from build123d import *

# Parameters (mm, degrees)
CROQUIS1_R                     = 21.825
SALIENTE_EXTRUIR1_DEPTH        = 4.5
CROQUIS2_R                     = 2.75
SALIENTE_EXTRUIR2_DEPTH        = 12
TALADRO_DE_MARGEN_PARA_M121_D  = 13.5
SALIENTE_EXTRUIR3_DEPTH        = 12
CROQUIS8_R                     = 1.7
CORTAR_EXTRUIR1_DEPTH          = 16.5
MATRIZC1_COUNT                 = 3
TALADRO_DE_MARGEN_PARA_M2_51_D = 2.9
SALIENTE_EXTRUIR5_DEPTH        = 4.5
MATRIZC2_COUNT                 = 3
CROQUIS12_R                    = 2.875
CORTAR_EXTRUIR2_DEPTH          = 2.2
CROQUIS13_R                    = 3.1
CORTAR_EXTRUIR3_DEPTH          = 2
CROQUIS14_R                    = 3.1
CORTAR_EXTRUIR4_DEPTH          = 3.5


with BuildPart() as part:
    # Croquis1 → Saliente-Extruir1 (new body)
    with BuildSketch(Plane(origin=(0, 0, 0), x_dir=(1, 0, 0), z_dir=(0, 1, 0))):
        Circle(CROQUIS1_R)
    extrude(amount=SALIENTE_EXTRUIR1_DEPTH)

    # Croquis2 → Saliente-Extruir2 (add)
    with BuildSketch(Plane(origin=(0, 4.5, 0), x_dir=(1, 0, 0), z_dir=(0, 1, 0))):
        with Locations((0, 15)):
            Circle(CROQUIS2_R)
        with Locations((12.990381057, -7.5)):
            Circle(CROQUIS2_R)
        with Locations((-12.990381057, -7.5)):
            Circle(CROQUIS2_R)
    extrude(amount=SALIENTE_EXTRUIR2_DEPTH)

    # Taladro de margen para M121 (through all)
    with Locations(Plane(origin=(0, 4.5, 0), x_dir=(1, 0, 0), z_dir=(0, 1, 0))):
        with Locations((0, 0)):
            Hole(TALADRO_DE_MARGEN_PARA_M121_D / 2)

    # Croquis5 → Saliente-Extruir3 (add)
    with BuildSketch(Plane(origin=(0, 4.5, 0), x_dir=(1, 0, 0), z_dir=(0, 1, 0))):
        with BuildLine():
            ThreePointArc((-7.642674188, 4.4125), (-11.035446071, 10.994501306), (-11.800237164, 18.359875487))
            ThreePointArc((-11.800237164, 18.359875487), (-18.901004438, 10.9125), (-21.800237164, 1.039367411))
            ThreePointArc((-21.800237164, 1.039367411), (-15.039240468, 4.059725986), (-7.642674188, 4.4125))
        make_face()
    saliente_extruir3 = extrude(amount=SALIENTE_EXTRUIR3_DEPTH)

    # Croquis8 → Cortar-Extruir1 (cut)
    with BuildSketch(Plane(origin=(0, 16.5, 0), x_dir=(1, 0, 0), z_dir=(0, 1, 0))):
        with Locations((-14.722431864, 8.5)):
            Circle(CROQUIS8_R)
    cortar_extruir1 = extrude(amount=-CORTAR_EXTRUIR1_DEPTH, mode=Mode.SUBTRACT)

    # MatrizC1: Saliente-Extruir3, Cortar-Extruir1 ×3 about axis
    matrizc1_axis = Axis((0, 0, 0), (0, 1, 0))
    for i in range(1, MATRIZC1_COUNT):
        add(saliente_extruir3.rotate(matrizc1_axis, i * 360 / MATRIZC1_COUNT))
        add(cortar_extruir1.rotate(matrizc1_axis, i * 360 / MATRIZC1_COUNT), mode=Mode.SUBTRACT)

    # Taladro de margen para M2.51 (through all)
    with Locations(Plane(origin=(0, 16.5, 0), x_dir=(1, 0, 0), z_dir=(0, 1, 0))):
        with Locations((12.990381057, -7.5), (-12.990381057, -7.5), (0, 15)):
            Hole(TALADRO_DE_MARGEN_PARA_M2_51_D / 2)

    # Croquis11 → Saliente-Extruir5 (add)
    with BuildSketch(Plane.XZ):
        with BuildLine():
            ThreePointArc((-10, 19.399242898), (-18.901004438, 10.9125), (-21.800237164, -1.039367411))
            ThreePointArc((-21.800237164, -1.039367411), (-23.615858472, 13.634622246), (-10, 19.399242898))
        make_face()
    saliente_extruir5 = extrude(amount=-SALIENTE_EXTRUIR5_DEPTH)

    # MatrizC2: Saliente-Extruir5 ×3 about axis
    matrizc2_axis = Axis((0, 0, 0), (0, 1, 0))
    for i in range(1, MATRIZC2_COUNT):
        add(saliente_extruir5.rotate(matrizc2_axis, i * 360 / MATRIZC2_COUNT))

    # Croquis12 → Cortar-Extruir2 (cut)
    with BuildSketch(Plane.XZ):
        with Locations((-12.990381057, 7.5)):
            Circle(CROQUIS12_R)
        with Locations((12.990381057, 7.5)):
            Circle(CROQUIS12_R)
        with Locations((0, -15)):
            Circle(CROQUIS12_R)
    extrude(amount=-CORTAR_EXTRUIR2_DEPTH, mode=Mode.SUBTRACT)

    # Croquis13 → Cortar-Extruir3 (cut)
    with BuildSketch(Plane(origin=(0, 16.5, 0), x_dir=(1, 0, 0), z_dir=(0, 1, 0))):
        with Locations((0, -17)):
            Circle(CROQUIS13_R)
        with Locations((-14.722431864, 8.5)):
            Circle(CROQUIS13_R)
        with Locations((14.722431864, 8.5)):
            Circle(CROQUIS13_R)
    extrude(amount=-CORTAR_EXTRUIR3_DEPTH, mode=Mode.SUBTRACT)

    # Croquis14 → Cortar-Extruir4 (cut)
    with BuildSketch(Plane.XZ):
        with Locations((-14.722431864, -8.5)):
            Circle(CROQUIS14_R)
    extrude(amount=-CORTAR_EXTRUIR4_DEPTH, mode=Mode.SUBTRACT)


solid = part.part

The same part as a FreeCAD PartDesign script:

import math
import FreeCAD as App
import Part
import Sketcher

doc = App.newDocument("Part")
body = doc.addObject("PartDesign::Body", "Body")

# Sketch on XZ plane
sketch1 = body.newObject("Sketcher::SketchObject", "Sketch")
sketch1.AttachmentSupport = (doc.getObject("XZ_Plane"), [""])
sketch1.MapMode = "FlatFace"
sketch1.addGeometry(Part.Circle(App.Vector(0, 0, 0), App.Vector(0, 0, 1), 22), False)
sketch1.addConstraint(Sketcher.Constraint("Coincident", 0, 3, -1, 1))
sketch1.addConstraint(Sketcher.Constraint("Diameter", 0, 43.65))
pad1 = body.newObject("PartDesign::Pad", "Pad")
pad1.Profile = sketch1
pad1.Length = 4.5
pad1.Reversed = True

# Sketch on XZ plane
sketch2 = body.newObject("Sketcher::SketchObject", "Sketch001")
sketch2.AttachmentSupport = (doc.getObject("XZ_Plane"), [""])
sketch2.MapMode = "FlatFace"
sketch2.AttachmentOffset = App.Placement(App.Vector(0, 0, -4.5), App.Rotation())
sketch2.addGeometry(Part.Circle(App.Vector(0, -15, 0), App.Vector(0, 0, 1), 2.8), False)
sketch2.addGeometry(Part.Circle(App.Vector(13, 7.5, 0), App.Vector(0, 0, 1), 2.8), False)
sketch2.addGeometry(Part.Circle(App.Vector(-13, 7.5, 0), App.Vector(0, 0, 1), 2.8), False)
sketch2.addConstraint(Sketcher.Constraint("Equal", 0, 1))
sketch2.addConstraint(Sketcher.Constraint("Equal", 1, 2))
sketch2.addConstraint(Sketcher.Constraint("Symmetric", 1, 3, 2, 3, -2))
sketch2.addConstraint(Sketcher.Constraint("PointOnObject", 0, 3, -2))
sketch2.addConstraint(Sketcher.Constraint("Diameter", 0, 5.5))
sketch2.addConstraint(Sketcher.Constraint("DistanceY", 0, 3, -1, 1, 15.0))
sketch2.addConstraint(Sketcher.Constraint("DistanceY", -1, 1, 1, 3, 7.5))
sketch2.addConstraint(Sketcher.Constraint("DistanceX", -1, 1, 1, 3, 12.990381))
pad2 = body.newObject("PartDesign::Pad", "Pad001")
pad2.Profile = sketch2
pad2.Length = 12
pad2.Reversed = True

# Sketch on XZ plane
sketch3 = body.newObject("Sketcher::SketchObject", "Sketch002")
sketch3.AttachmentSupport = (doc.getObject("XZ_Plane"), [""])
sketch3.MapMode = "FlatFace"
sketch3.AttachmentOffset = App.Placement(App.Vector(0, 0, -4.5), App.Rotation())
sketch3.addGeometry(Part.Circle(App.Vector(0, 0, 0), App.Vector(0, 0, 1), 7), False)
sketch3.addConstraint(Sketcher.Constraint("Coincident", 0, 3, -1, 1))
sketch3.addConstraint(Sketcher.Constraint("Diameter", 0, 13.5))
doc.recompute()
hole = body.newObject("PartDesign::Hole", "Hole")
hole.Profile = sketch3
hole.ThreadType = "None"
hole.Diameter = 13.5
hole.DepthType = "ThroughAll"
hole.Reversed = True

# Sketch on XZ plane
sketch4 = body.newObject("Sketcher::SketchObject", "Sketch003")
sketch4.AttachmentSupport = (doc.getObject("XZ_Plane"), [""])
sketch4.MapMode = "FlatFace"
sketch4.AttachmentOffset = App.Placement(App.Vector(0, 0, -4.5), App.Rotation())
sketch4.addGeometry(Part.ArcOfCircle(Part.Circle(App.Vector(8, -17, 0), App.Vector(0, 0, 1), 20), math.radians(142), math.radians(185)), False)
sketch4.addGeometry(Part.ArcOfCircle(Part.Circle(App.Vector(0, 0, 0), App.Vector(0, 0, 1), 22), math.radians(-177), math.radians(-123)), False)
sketch4.addGeometry(Part.ArcOfCircle(Part.Circle(App.Vector(-10, 15, 0), App.Vector(0, 0, 1), 20), math.radians(-125), math.radians(-82)), False)
sketch4.addConstraint(Sketcher.Constraint("Coincident", 0, 2, 1, 2))
sketch4.addConstraint(Sketcher.Constraint("Coincident", 1, 1, 2, 1))
sketch4.addConstraint(Sketcher.Constraint("Coincident", 2, 2, 0, 1))
sketch4.addConstraint(Sketcher.Constraint("Coincident", 1, 3, -1, 1))
sketch4.addConstraint(Sketcher.Constraint("Equal", 0, 2))
sketch4.addConstraint(Sketcher.Constraint("Radius", 1, 21.825))
sketch4.addConstraint(Sketcher.Constraint("DistanceX", 1, 1, 0, 2, 10.0))
sketch4.addConstraint(Sketcher.Constraint("Radius", 0, 19.99583))
sketch4.addConstraint(Sketcher.Constraint("DistanceY", 2, 2, -1, 1, 4.4125))
sketch4.addConstraint(Sketcher.Constraint("DistanceY", 0, 3, -1, 1, 16.706661))
sketch4.addConstraint(Sketcher.Constraint("DistanceX", 2, 3, 0, 3, 18.531959))
pad3 = body.newObject("PartDesign::Pad", "Pad002")
pad3.Profile = sketch4
pad3.Length = 12
pad3.Reversed = True

# Sketch on XZ plane
sketch5 = body.newObject("Sketcher::SketchObject", "Sketch004")
sketch5.AttachmentSupport = (doc.getObject("XZ_Plane"), [""])
sketch5.MapMode = "FlatFace"
sketch5.AttachmentOffset = App.Placement(App.Vector(0, 0, -16.5), App.Rotation())
sketch5.addGeometry(Part.Circle(App.Vector(-14.7, -8.5, 0), App.Vector(0, 0, 1), 1.7), False)
sketch5.addConstraint(Sketcher.Constraint("Diameter", 0, 3.4))
sketch5.addConstraint(Sketcher.Constraint("DistanceY", 0, 3, -1, 1, 8.5))
sketch5.addConstraint(Sketcher.Constraint("DistanceX", 0, 3, -1, 1, 14.722432))
pocket1 = body.newObject("PartDesign::Pocket", "Pocket")
pocket1.Profile = sketch5
pocket1.Length = 16.5
pocket1.Reversed = True
doc.recompute()

polarpattern = body.newObject("PartDesign::PolarPattern", "PolarPattern")
polarpattern.Originals = [pad3, pocket1]
polarpattern.Axis = (doc.getObject("Y_Axis"), [""])
polarpattern.Angle = 360
polarpattern.Occurrences = 3
body.Tip = polarpattern

# Sketch on XZ plane
sketch6 = body.newObject("Sketcher::SketchObject", "Sketch005")
sketch6.AttachmentSupport = (doc.getObject("XZ_Plane"), [""])
sketch6.MapMode = "FlatFace"
sketch6.AttachmentOffset = App.Placement(App.Vector(0, 0, -16.5), App.Rotation())
sketch6.addGeometry(Part.Circle(App.Vector(13, 7.5, 0), App.Vector(0, 0, 1), 1.4), False)
sketch6.addGeometry(Part.Circle(App.Vector(-13, 7.5, 0), App.Vector(0, 0, 1), 1.4), False)
sketch6.addGeometry(Part.Circle(App.Vector(0, -15, 0), App.Vector(0, 0, 1), 1.4), False)
sketch6.addConstraint(Sketcher.Constraint("Equal", 0, 1))
sketch6.addConstraint(Sketcher.Constraint("Equal", 1, 2))
sketch6.addConstraint(Sketcher.Constraint("Symmetric", 0, 3, 1, 3, -2))
sketch6.addConstraint(Sketcher.Constraint("PointOnObject", 2, 3, -2))
sketch6.addConstraint(Sketcher.Constraint("Diameter", 0, 2.9))
sketch6.addConstraint(Sketcher.Constraint("DistanceY", 2, 3, -1, 1, 15.0))
sketch6.addConstraint(Sketcher.Constraint("DistanceY", -1, 1, 0, 3, 7.5))
sketch6.addConstraint(Sketcher.Constraint("DistanceX", -1, 1, 0, 3, 12.990381))
doc.recompute()
hole2 = body.newObject("PartDesign::Hole", "Hole001")
hole2.Profile = sketch6
hole2.ThreadType = "None"
hole2.Diameter = 2.9
hole2.DepthType = "ThroughAll"
hole2.Reversed = True

# Sketch on XZ plane
sketch7 = body.newObject("Sketcher::SketchObject", "Sketch006")
sketch7.AttachmentSupport = (doc.getObject("XZ_Plane"), [""])
sketch7.MapMode = "FlatFace"
sketch7.addGeometry(Part.ArcOfCircle(Part.Circle(App.Vector(0, 0, 0), App.Vector(0, 0, 1), 22), math.radians(117), math.radians(183)), False)
sketch7.addGeometry(Part.ArcOfCircle(Part.Circle(App.Vector(-13, 8, 0), App.Vector(0, 0, 1), 12), math.radians(76), math.radians(224)), False)
sketch7.addConstraint(Sketcher.Constraint("Coincident", 0, 1, 1, 1))
sketch7.addConstraint(Sketcher.Constraint("Coincident", 1, 2, 0, 2))
sketch7.addConstraint(Sketcher.Constraint("Coincident", 0, 3, -1, 1))
sketch7.addConstraint(Sketcher.Constraint("DistanceX", 0, 1, -1, 1, 10.0))
sketch7.addConstraint(Sketcher.Constraint("Radius", 0, 21.825))
sketch7.addConstraint(Sketcher.Constraint("DistanceY", -1, 1, 1, 3, 7.5))
sketch7.addConstraint(Sketcher.Constraint("Radius", 1, 12.269244))
pad4 = body.newObject("PartDesign::Pad", "Pad003")
pad4.Profile = sketch7
pad4.Length = 4.5
pad4.Reversed = True
doc.recompute()

polarpattern2 = body.newObject("PartDesign::PolarPattern", "PolarPattern001")
polarpattern2.Originals = [pad4]
polarpattern2.Axis = (doc.getObject("Y_Axis"), [""])
polarpattern2.Angle = 360
polarpattern2.Occurrences = 3
body.Tip = polarpattern2

# Sketch on XZ plane
sketch8 = body.newObject("Sketcher::SketchObject", "Sketch007")
sketch8.AttachmentSupport = (doc.getObject("XZ_Plane"), [""])
sketch8.MapMode = "FlatFace"
sketch8.addGeometry(Part.Circle(App.Vector(-13, 7.5, 0), App.Vector(0, 0, 1), 2.9), False)
sketch8.addGeometry(Part.Circle(App.Vector(13, 7.5, 0), App.Vector(0, 0, 1), 2.9), False)
sketch8.addGeometry(Part.Circle(App.Vector(0, -15, 0), App.Vector(0, 0, 1), 2.9), False)
sketch8.addConstraint(Sketcher.Constraint("Equal", 0, 1))
sketch8.addConstraint(Sketcher.Constraint("Equal", 1, 2))
sketch8.addConstraint(Sketcher.Constraint("Symmetric", 0, 3, 1, 3, -2))
sketch8.addConstraint(Sketcher.Constraint("PointOnObject", 2, 3, -2))
sketch8.addConstraint(Sketcher.Constraint("Diameter", 0, 5.75))
sketch8.addConstraint(Sketcher.Constraint("DistanceY", 2, 3, -1, 1, 15.0))
sketch8.addConstraint(Sketcher.Constraint("DistanceY", -1, 1, 0, 3, 7.5))
sketch8.addConstraint(Sketcher.Constraint("DistanceX", 0, 3, -1, 1, 12.990381))
pocket2 = body.newObject("PartDesign::Pocket", "Pocket001")
pocket2.Profile = sketch8
pocket2.Length = 2.2

# Sketch on XZ plane
sketch9 = body.newObject("Sketcher::SketchObject", "Sketch008")
sketch9.AttachmentSupport = (doc.getObject("XZ_Plane"), [""])
sketch9.MapMode = "FlatFace"
sketch9.AttachmentOffset = App.Placement(App.Vector(0, 0, -16.5), App.Rotation())
sketch9.addGeometry(Part.Circle(App.Vector(0, 17, 0), App.Vector(0, 0, 1), 3.1), False)
sketch9.addGeometry(Part.Circle(App.Vector(-14.7, -8.5, 0), App.Vector(0, 0, 1), 3.1), False)
sketch9.addGeometry(Part.Circle(App.Vector(14.7, -8.5, 0), App.Vector(0, 0, 1), 3.1), False)
sketch9.addConstraint(Sketcher.Constraint("Equal", 0, 1))
sketch9.addConstraint(Sketcher.Constraint("Equal", 1, 2))
sketch9.addConstraint(Sketcher.Constraint("Symmetric", 1, 3, 2, 3, -2))
sketch9.addConstraint(Sketcher.Constraint("PointOnObject", 0, 3, -2))
sketch9.addConstraint(Sketcher.Constraint("Diameter", 0, 6.2))
sketch9.addConstraint(Sketcher.Constraint("DistanceY", -1, 1, 0, 3, 17.0))
sketch9.addConstraint(Sketcher.Constraint("DistanceY", 1, 3, -1, 1, 8.5))
sketch9.addConstraint(Sketcher.Constraint("DistanceX", 1, 3, -1, 1, 14.722432))
pocket3 = body.newObject("PartDesign::Pocket", "Pocket002")
pocket3.Profile = sketch9
pocket3.Length = 2
pocket3.Reversed = True

# Sketch on XZ plane
sketch10 = body.newObject("Sketcher::SketchObject", "Sketch009")
sketch10.AttachmentSupport = (doc.getObject("XZ_Plane"), [""])
sketch10.MapMode = "FlatFace"
sketch10.addGeometry(Part.Circle(App.Vector(-14.7, -8.5, 0), App.Vector(0, 0, 1), 3.1), False)
sketch10.addConstraint(Sketcher.Constraint("Diameter", 0, 6.2))
sketch10.addConstraint(Sketcher.Constraint("DistanceY", 0, 3, -1, 1, 8.5))
sketch10.addConstraint(Sketcher.Constraint("DistanceX", 0, 3, -1, 1, 14.722432))
pocket4 = body.newObject("PartDesign::Pocket", "Pocket003")
pocket4.Profile = sketch10
pocket4.Length = 3.5

doc.recompute()
